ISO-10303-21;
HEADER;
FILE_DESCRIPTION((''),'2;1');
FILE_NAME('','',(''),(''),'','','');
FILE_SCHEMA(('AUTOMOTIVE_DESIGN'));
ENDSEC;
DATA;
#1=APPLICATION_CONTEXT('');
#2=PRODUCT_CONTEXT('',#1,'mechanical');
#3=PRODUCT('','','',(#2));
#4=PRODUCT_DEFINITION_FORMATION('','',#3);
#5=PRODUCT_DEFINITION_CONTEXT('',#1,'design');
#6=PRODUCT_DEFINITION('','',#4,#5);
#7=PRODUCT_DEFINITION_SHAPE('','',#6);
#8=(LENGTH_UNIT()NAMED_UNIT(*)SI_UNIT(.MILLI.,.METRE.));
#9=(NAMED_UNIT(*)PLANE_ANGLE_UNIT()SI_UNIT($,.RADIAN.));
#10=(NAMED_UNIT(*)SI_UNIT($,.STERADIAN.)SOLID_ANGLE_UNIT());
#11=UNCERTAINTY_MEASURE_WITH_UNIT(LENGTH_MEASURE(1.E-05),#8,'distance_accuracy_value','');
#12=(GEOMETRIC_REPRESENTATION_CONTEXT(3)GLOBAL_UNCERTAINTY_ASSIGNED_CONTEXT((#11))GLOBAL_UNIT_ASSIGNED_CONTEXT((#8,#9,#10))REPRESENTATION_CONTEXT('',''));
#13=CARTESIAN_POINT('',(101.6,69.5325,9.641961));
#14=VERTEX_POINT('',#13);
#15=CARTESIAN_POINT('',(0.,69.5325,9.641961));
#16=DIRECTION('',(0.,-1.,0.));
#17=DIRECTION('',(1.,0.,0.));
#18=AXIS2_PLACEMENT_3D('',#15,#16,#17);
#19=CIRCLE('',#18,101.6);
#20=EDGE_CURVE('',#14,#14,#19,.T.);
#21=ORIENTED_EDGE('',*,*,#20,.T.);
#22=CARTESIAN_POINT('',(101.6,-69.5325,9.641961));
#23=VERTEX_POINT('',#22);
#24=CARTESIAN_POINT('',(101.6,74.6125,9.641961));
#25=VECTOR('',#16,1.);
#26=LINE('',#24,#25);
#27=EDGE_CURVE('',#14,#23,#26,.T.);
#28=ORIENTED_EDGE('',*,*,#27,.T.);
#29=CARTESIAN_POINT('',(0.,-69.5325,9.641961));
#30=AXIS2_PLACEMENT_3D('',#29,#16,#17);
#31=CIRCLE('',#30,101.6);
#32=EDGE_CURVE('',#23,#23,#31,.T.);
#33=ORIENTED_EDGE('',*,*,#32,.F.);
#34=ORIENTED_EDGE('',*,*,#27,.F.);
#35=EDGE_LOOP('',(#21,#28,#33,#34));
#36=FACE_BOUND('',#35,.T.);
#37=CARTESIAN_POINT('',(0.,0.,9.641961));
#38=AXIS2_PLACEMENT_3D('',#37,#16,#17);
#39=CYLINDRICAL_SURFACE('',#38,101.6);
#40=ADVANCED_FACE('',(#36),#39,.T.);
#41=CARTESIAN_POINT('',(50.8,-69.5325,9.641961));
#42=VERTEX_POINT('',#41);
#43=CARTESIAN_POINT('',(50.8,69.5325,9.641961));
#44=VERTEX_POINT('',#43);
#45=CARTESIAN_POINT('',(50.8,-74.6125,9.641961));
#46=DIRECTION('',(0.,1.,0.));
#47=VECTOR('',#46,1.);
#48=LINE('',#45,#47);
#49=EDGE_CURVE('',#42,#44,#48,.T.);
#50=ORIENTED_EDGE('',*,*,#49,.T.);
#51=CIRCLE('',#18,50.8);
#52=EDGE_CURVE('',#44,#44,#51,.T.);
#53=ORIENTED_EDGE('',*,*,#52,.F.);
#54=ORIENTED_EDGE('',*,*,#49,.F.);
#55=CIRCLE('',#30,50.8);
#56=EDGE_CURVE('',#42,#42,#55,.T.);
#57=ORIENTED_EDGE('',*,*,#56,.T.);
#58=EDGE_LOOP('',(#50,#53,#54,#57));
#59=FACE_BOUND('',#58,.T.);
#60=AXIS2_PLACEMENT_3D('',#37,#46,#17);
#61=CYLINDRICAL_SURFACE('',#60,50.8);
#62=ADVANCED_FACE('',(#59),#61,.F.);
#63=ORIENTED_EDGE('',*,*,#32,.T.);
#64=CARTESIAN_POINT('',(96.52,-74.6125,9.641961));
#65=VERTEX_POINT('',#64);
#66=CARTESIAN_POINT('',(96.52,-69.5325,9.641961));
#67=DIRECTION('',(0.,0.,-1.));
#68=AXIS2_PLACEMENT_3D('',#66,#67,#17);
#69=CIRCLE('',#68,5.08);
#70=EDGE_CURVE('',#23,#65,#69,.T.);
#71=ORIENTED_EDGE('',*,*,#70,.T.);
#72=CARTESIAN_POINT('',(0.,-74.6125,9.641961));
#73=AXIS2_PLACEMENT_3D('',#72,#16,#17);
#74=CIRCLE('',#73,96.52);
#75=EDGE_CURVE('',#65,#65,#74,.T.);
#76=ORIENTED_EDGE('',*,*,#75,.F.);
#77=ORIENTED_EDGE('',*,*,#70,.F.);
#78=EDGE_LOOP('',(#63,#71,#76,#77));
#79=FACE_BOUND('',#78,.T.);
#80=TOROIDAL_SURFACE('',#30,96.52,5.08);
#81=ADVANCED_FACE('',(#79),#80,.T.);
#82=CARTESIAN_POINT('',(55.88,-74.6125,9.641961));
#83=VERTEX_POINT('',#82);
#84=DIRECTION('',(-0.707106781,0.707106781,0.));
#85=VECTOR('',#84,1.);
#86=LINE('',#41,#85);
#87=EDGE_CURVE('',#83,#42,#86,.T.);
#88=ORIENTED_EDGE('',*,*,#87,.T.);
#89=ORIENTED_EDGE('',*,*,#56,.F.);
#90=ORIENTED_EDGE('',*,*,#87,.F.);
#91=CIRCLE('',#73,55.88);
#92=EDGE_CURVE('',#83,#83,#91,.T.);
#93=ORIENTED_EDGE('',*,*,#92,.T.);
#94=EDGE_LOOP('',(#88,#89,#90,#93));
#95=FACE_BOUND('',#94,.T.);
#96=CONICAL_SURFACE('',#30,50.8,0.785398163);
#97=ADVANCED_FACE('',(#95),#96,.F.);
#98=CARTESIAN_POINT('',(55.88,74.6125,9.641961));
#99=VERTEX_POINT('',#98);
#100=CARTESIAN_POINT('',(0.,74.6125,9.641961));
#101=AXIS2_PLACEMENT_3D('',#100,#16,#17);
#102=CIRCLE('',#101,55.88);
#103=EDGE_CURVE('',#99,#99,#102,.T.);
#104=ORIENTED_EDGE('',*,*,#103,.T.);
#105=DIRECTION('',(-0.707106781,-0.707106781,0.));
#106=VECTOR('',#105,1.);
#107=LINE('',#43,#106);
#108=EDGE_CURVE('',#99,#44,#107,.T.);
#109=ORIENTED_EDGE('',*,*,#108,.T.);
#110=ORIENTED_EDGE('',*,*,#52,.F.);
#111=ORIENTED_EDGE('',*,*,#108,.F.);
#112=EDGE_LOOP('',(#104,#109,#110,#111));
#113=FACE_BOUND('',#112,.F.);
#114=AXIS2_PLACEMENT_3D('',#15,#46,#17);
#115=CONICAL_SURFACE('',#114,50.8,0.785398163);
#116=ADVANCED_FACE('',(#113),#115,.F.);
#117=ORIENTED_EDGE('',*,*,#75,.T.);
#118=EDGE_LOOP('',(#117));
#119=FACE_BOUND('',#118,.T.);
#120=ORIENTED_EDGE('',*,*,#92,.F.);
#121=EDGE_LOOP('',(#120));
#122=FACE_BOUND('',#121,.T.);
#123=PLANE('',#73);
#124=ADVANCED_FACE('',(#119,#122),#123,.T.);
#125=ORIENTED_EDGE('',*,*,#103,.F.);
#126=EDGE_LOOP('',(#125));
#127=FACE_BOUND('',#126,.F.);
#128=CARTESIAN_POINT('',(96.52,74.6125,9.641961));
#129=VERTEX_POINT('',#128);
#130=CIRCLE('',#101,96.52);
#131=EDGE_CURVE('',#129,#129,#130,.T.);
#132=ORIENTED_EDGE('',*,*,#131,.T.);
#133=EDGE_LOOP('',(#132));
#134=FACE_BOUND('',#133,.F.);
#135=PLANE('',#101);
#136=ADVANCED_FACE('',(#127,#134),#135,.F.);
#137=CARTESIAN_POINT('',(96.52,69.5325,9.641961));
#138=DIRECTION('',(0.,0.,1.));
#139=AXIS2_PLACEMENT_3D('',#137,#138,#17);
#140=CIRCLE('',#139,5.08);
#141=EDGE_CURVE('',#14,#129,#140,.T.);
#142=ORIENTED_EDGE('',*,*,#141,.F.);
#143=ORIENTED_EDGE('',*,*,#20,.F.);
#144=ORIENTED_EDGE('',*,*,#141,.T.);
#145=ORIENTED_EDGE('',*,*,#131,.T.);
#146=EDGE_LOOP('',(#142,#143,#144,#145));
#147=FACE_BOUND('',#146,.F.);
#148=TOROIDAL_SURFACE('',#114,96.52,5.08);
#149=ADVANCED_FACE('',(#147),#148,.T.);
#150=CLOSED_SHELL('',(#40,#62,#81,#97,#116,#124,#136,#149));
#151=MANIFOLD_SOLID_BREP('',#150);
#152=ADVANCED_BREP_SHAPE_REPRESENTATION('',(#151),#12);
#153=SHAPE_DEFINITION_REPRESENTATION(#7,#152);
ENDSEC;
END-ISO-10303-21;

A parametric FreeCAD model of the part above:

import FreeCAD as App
import Part
import Sketcher
Q = App.Units.Quantity


def edges_at(feature, points):
    """Names of the edges that pass closest to the given points."""
    edges = feature.Shape.Edges
    near = lambda p: min(range(len(edges)), key=lambda i: edges[i].distToShape(Part.Vertex(*p))[0])
    return sorted({f"Edge{near(p) + 1}" for p in points})

doc = App.newDocument("Part")
params = doc.addObject("Spreadsheet::Sheet", "Params")
for row, (alias, value) in enumerate([
    ("sketch1_diameter", "8 in"),
    ("sketch1_diameter2", "4 in"),
    ("pad1_length", "5.875 in"),
    ("fillet_radius", "0.2 in"),
    ("chamfer_size", "0.2 in"),
], start=1):
    params.set(f"A{row}", alias)
    params.set(f"B{row}", "=" + value)
    params.setAlias(f"B{row}", alias)

body = doc.addObject("PartDesign::Body", "Body")

sketch1 = body.newObject("Sketcher::SketchObject", "Sketch")
sketch1.AttachmentSupport = (doc.getObject("XZ_Plane"), [""])
sketch1.MapMode = "FlatFace"
sketch1.addGeometry([
    Part.Circle(App.Vector(0, 9.641961, 0), App.Vector(0, 0, 1), 101.6),
    Part.Circle(App.Vector(0, 9.641961, 0), App.Vector(0, 0, 1), 50.8),
], False)
sketch1.addConstraint([
    Sketcher.Constraint("Coincident", 1, 3, 0, 3),
    Sketcher.Constraint("PointOnObject", 0, 3, -2),
    Sketcher.Constraint("Diameter", 0, Q("8 in")),
    Sketcher.Constraint("Diameter", 1, Q("4 in")),
    Sketcher.Constraint("DistanceY", -1, 1, 0, 3, 9.641961),
])
sketch1.setExpression("Constraints[2]", "Params.sketch1_diameter")
sketch1.setExpression("Constraints[3]", "Params.sketch1_diameter2")
pad1 = body.newObject("PartDesign::Pad", "Pad")
pad1.Profile = sketch1
pad1.setExpression("Length", "Params.pad1_length")
pad1.Midplane = True
doc.recompute()

fillet = body.newObject("PartDesign::Fillet", "Fillet")
fillet.Base = (pad1, edges_at(pad1, [(-101.6, 74.612, 9.642), (101.6, 0, 9.642), (-101.6, -74.612, 9.642)]))
fillet.setExpression("Radius", "Params.fillet_radius")
doc.recompute()

chamfer = body.newObject("PartDesign::Chamfer", "Chamfer")
chamfer.Base = (fillet, edges_at(fillet, [(-50.8, -74.612, 9.642), (50.8, 0, 9.642), (-50.8, 74.612, 9.642)]))
chamfer.setExpression("Size", "Params.chamfer_size")

doc.recompute()
